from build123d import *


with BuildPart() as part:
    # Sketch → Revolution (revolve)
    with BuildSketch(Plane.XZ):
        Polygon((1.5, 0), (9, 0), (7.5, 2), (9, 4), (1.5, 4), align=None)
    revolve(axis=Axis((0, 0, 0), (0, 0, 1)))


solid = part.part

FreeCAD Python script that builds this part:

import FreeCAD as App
import Part
import Sketcher
Q = App.Units.Quantity

doc = App.newDocument("Part")
params = doc.addObject("Spreadsheet::Sheet", "Params")
for row, (alias, value) in enumerate([
    ("sketch1_height", "4 mm"),
    ("sketch1_width", "7.5 mm"),
    ("revolution_angle", "360 deg"),
], start=1):
    params.set(f"A{row}", alias)
    params.set(f"B{row}", "=" + value)
    params.setAlias(f"B{row}", alias)

body = doc.addObject("PartDesign::Body", "Body")

sketch1 = body.newObject("Sketcher::SketchObject", "Sketch")
sketch1.AttachmentSupport = (doc.getObject("XZ_Plane"), [""])
sketch1.MapMode = "FlatFace"
sketch1.addGeometry(Part.LineSegment(App.Vector(1.5, 0, 0), App.Vector(9, 0, 0)), False)
sketch1.addGeometry(Part.LineSegment(App.Vector(9, 0, 0), App.Vector(7.5, 2, 0)), False)
sketch1.addGeometry(Part.LineSegment(App.Vector(7.5, 2, 0), App.Vector(9, 4, 0)), False)
sketch1.addGeometry(Part.LineSegment(App.Vector(9, 4, 0), App.Vector(1.5, 4, 0)), False)
sketch1.addGeometry(Part.LineSegment(App.Vector(1.5, 4, 0), App.Vector(1.5, 0, 0)), False)
sketch1.addConstraint(Sketcher.Constraint("Coincident", 0, 2, 1, 1))
sketch1.addConstraint(Sketcher.Constraint("Coincident", 1, 2, 2, 1))
sketch1.addConstraint(Sketcher.Constraint("Coincident", 2, 2, 3, 1))
sketch1.addConstraint(Sketcher.Constraint("Coincident", 3, 2, 4, 1))
sketch1.addConstraint(Sketcher.Constraint("Coincident", 4, 2, 0, 1))
sketch1.addConstraint(Sketcher.Constraint("Horizontal", 0))
sketch1.addConstraint(Sketcher.Constraint("Horizontal", 3))
sketch1.addConstraint(Sketcher.Constraint("Vertical", 4))
sketch1.addConstraint(Sketcher.Constraint("PointOnObject", 0, 2, -1))
sketch1.addConstraint(Sketcher.Constraint("Vertical", 0, 2, 2, 2))
sketch1.addConstraint(Sketcher.Constraint("Equal", 1, 2))
sketch1.addConstraint(Sketcher.Constraint("DistanceY", 4, 2, 4, 1, Q("4 mm")))
sketch1.addConstraint(Sketcher.Constraint("DistanceX", 0, 1, 0, 2, Q("7.5 mm")))
sketch1.addConstraint(Sketcher.Constraint("DistanceX", -1, 1, 0, 2, Q("9 mm")))
sketch1.addConstraint(Sketcher.Constraint("DistanceX", 3, 2, 1, 2, Q("6 mm")))
sketch1.setExpression("Constraints[11]", "Params.sketch1_height")
sketch1.setExpression("Constraints[12]", "Params.sketch1_width")
revolution = body.newObject("PartDesign::Revolution", "Revolution")
revolution.Profile = sketch1
revolution.ReferenceAxis = (sketch1, ["V_Axis"])
revolution.setExpression("Angle", "Params.revolution_angle")

doc.recompute()
